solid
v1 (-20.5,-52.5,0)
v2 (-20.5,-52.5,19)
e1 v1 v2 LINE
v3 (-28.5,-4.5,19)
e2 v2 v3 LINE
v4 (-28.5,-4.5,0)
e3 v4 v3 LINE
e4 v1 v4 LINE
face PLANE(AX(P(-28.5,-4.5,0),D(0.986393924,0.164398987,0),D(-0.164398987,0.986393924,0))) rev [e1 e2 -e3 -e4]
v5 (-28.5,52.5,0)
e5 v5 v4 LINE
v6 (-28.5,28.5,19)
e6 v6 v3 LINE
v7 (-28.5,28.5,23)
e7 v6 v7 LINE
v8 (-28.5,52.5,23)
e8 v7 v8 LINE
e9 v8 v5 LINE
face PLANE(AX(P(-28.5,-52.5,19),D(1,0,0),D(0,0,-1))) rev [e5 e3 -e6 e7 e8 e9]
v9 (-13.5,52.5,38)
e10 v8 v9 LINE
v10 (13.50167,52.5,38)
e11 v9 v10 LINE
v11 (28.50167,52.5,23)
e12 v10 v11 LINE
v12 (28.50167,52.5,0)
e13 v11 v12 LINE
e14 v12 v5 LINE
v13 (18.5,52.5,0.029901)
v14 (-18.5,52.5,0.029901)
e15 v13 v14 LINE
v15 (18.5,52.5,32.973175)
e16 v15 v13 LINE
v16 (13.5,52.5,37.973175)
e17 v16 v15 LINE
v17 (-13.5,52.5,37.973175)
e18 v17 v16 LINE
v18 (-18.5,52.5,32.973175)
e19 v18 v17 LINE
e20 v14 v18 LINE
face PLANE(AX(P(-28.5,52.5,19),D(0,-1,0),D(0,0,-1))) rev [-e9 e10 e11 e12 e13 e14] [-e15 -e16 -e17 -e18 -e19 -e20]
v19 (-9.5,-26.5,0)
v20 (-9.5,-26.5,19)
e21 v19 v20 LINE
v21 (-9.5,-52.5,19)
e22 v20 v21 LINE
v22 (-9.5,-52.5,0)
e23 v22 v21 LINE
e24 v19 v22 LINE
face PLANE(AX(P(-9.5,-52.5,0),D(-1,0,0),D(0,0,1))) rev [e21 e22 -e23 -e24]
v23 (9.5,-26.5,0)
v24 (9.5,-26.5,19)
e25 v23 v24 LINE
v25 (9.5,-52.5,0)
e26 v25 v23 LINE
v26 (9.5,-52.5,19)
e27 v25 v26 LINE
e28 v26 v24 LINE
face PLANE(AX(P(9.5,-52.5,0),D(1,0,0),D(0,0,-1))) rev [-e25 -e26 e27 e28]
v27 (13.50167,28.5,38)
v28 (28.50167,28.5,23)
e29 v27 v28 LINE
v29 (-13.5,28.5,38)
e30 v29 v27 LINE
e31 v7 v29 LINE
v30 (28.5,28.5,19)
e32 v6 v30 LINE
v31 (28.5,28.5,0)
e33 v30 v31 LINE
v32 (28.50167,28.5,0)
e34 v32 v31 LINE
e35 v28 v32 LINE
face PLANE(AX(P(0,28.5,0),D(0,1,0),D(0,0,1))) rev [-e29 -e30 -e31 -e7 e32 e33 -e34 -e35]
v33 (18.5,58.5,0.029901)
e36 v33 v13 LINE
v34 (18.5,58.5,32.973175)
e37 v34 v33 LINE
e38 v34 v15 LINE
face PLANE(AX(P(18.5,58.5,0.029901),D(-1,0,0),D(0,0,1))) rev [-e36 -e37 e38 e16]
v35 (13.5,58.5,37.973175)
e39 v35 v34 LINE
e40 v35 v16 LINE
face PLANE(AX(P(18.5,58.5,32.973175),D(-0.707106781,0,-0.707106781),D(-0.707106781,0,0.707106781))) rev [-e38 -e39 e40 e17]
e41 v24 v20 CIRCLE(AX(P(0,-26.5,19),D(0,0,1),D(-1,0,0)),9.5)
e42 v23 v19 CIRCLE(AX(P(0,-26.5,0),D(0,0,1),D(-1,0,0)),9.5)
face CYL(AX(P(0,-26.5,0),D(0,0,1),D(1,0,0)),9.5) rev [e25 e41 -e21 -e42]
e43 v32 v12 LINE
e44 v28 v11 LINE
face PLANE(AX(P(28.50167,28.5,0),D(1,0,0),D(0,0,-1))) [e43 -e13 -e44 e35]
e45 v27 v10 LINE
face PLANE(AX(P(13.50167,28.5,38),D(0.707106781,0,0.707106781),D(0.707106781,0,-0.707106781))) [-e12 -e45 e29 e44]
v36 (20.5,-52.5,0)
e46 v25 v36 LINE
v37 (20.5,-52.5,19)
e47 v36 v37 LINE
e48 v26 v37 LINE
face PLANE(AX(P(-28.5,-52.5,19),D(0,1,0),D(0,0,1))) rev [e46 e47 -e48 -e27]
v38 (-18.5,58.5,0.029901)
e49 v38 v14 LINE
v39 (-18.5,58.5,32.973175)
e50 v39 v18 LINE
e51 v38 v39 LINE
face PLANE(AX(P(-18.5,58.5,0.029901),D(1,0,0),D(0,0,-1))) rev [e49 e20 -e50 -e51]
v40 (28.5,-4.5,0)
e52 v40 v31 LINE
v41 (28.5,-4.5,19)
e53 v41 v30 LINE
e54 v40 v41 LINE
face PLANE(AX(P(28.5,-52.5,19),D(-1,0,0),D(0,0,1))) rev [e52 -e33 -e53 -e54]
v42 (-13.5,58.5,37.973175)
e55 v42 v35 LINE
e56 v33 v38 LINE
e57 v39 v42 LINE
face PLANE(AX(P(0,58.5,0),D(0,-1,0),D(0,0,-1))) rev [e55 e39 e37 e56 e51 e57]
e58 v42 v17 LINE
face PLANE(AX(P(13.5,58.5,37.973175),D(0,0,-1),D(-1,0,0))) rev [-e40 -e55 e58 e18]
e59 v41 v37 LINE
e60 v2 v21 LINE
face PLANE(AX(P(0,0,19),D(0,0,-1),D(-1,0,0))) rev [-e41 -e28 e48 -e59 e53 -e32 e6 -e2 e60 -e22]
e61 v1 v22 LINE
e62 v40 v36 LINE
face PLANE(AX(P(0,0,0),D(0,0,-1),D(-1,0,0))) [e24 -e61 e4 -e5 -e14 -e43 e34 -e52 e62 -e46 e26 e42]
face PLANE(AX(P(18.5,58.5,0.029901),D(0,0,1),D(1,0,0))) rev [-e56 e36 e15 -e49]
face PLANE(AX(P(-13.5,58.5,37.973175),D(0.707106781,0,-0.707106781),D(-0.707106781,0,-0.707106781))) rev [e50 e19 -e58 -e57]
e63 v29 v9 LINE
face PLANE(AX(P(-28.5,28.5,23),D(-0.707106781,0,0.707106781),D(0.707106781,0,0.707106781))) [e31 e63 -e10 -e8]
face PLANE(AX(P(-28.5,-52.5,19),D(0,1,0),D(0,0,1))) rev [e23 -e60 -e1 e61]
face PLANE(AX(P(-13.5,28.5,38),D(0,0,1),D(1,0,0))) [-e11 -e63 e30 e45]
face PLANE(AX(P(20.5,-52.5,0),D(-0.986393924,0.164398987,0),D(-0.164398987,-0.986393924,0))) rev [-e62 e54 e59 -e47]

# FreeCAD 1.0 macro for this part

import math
import FreeCAD as App
import Part
import Sketcher
Q = App.Units.Quantity

doc = App.newDocument("Part")
body = doc.addObject("PartDesign::Body", "Body")

sketch1 = doc.addObject("Sketcher::SketchObject", "Sketch")
body.addObject(sketch1)
sketch1.AttachmentSupport = (doc.XY_Plane, [""])
sketch1.MapMode = "FlatFace"
sketch1.addGeometry(Part.LineSegment(App.Vector(-28, 52, 0), App.Vector(-28, -52, 0)), False)
sketch1.addGeometry(Part.LineSegment(App.Vector(-28, -52, 0), App.Vector(28, -52, 0)), False)
sketch1.addGeometry(Part.LineSegment(App.Vector(28, -52, 0), App.Vector(28, 52, 0)), False)
sketch1.addGeometry(Part.LineSegment(App.Vector(28, 52, 0), App.Vector(-28, 52, 0)), False)
sketch1.addConstraint(Sketcher.Constraint("Coincident", 0, 2, 1, 1))
sketch1.addConstraint(Sketcher.Constraint("Coincident", 1, 2, 2, 1))
sketch1.addConstraint(Sketcher.Constraint("Coincident", 2, 2, 3, 1))
sketch1.addConstraint(Sketcher.Constraint("Coincident", 3, 2, 0, 1))
sketch1.addConstraint(Sketcher.Constraint("Vertical", 0))
sketch1.addConstraint(Sketcher.Constraint("Horizontal", 1))
sketch1.addConstraint(Sketcher.Constraint("Vertical", 2))
sketch1.addConstraint(Sketcher.Constraint("Horizontal", 3))
sketch1.addConstraint(Sketcher.Constraint("Symmetric", 0, 2, 2, 2, -1, 1))
sketch1.addConstraint(Sketcher.Constraint("DistanceX", 1, 1, 1, 2, Q("57 mm")))
sketch1.addConstraint(Sketcher.Constraint("DistanceY", 0, 2, 0, 1, Q("105 mm")))
pad1 = doc.addObject("PartDesign::Pad", "Pad")
body.addObject(pad1)
pad1.Profile = sketch1
pad1.Length = 19

sketch2 = doc.addObject("Sketcher::SketchObject", "Sketch001")
body.addObject(sketch2)
sketch2.AttachmentSupport = (doc.XY_Plane, [""])
sketch2.MapMode = "FlatFace"
sketch2.AttachmentOffset = App.Placement(App.Vector(0, 0, 19), App.Rotation())
sketch2.addGeometry(Part.LineSegment(App.Vector(20, -52, 0), App.Vector(28, -52, 0)), False)
sketch2.addGeometry(Part.LineSegment(App.Vector(28, -52, 0), App.Vector(28, -4, 0)), False)
sketch2.addGeometry(Part.LineSegment(App.Vector(28, -4, 0), App.Vector(20, -52, 0)), False)
sketch2.addConstraint(Sketcher.Constraint("Coincident", 0, 2, 1, 1))
sketch2.addConstraint(Sketcher.Constraint("Coincident", 1, 2, 2, 1))
sketch2.addConstraint(Sketcher.Constraint("Coincident", 2, 2, 0, 1))
sketch2.addConstraint(Sketcher.Constraint("Horizontal", 0))
sketch2.addConstraint(Sketcher.Constraint("Vertical", 1))
sketch2.addConstraint(Sketcher.Constraint("DistanceX", 0, 1, 0, 2, Q("8 mm")))
sketch2.addConstraint(Sketcher.Constraint("DistanceY", 1, 1, 1, 2, Q("48 mm")))
sketch2.addConstraint(Sketcher.Constraint("DistanceX", -1, 1, 0, 2, Q("28.5 mm")))
sketch2.addConstraint(Sketcher.Constraint("DistanceY", 0, 2, -1, 1, Q("52.5 mm")))
pocket1 = doc.addObject("PartDesign::Pocket", "Pocket")
body.addObject(pocket1)
pocket1.Profile = sketch2
pocket1.Length = 19

sketch3 = doc.addObject("Sketcher::SketchObject", "Sketch002")
body.addObject(sketch3)
sketch3.AttachmentSupport = (doc.XY_Plane, [""])
sketch3.MapMode = "FlatFace"
sketch3.AttachmentOffset = App.Placement(App.Vector(0, 0, 19), App.Rotation())
sketch3.addGeometry(Part.LineSegment(App.Vector(-28, -4, 0), App.Vector(-28, -52, 0)), False)
sketch3.addGeometry(Part.LineSegment(App.Vector(-28, -52, 0), App.Vector(-20, -52, 0)), False)
sketch3.addGeometry(Part.LineSegment(App.Vector(-20, -52, 0), App.Vector(-28, -4, 0)), False)
sketch3.addConstraint(Sketcher.Constraint("Coincident", 0, 2, 1, 1))
sketch3.addConstraint(Sketcher.Constraint("Coincident", 1, 2, 2, 1))
sketch3.addConstraint(Sketcher.Constraint("Coincident", 2, 2, 0, 1))
sketch3.addConstraint(Sketcher.Constraint("Vertical", 0))
sketch3.addConstraint(Sketcher.Constraint("Horizontal", 1))
sketch3.addConstraint(Sketcher.Constraint("DistanceX", 1, 1, 1, 2, Q("8 mm")))
sketch3.addConstraint(Sketcher.Constraint("DistanceY", 0, 2, 0, 1, Q("48 mm")))
sketch3.addConstraint(Sketcher.Constraint("DistanceX", 0, 2, -1, 1, Q("28.5 mm")))
sketch3.addConstraint(Sketcher.Constraint("DistanceY", 0, 2, -1, 1, Q("52.5 mm")))
pocket2 = doc.addObject("PartDesign::Pocket", "Pocket001")
body.addObject(pocket2)
pocket2.Profile = sketch3
pocket2.Length = 19

sketch4 = doc.addObject("Sketcher::SketchObject", "Sketch003")
body.addObject(sketch4)
sketch4.AttachmentSupport = (doc.XY_Plane, [""])
sketch4.MapMode = "FlatFace"
sketch4.AttachmentOffset = App.Placement(App.Vector(0, 0, 19), App.Rotation())
sketch4.addGeometry(Part.LineSegment(App.Vector(-10, -26, 0), App.Vector(-10, -52, 0)), False)
sketch4.addGeometry(Part.LineSegment(App.Vector(-10, -52, 0), App.Vector(10, -52, 0)), False)
sketch4.addGeometry(Part.LineSegment(App.Vector(10, -52, 0), App.Vector(10, -26, 0)), False)
sketch4.addGeometry(Part.ArcOfCircle(Part.Circle(App.Vector(0, -26, 0), App.Vector(0, 0, 1), 10), math.radians(0), math.radians(180)), False)
sketch4.addConstraint(Sketcher.Constraint("Coincident", 0, 2, 1, 1))
sketch4.addConstraint(Sketcher.Constraint("Coincident", 1, 2, 2, 1))
sketch4.addConstraint(Sketcher.Constraint("Tangent", 2, 2, 3, 1))
sketch4.addConstraint(Sketcher.Constraint("Tangent", 3, 2, 0, 1))
sketch4.addConstraint(Sketcher.Constraint("Vertical", 0))
sketch4.addConstraint(Sketcher.Constraint("Horizontal", 1))
sketch4.addConstraint(Sketcher.Constraint("Vertical", 2))
sketch4.addConstraint(Sketcher.Constraint("PointOnObject", 3, 3, -2))
sketch4.addConstraint(Sketcher.Constraint("Radius", 3, Q("9.5 mm")))
sketch4.addConstraint(Sketcher.Constraint("DistanceY", 0, 2, 0, 1, Q("26 mm")))
sketch4.addConstraint(Sketcher.Constraint("DistanceY", 3, 3, -1, 1, Q("26.5 mm")))
pocket3 = doc.addObject("PartDesign::Pocket", "Pocket002")
body.addObject(pocket3)
pocket3.Profile = sketch4
pocket3.Type = "ThroughAll"

sketch5 = doc.addObject("Sketcher::SketchObject", "Sketch004")
body.addObject(sketch5)
sketch5.AttachmentSupport = (doc.XZ_Plane, [""])
sketch5.MapMode = "FlatFace"
sketch5.AttachmentOffset = App.Placement(App.Vector(0, 0, -52.5), App.Rotation())
sketch5.addGeometry(Part.LineSegment(App.Vector(-28, 23, 0), App.Vector(-14, 38, 0)), False)
sketch5.addGeometry(Part.LineSegment(App.Vector(-14, 38, 0), App.Vector(14, 38, 0)), False)
sketch5.addGeometry(Part.LineSegment(App.Vector(14, 38, 0), App.Vector(29, 23, 0)), False)
sketch5.addGeometry(Part.LineSegment(App.Vector(29, 23, 0), App.Vector(29, 0, 0)), False)
sketch5.addGeometry(Part.LineSegment(App.Vector(29, 0, 0), App.Vector(-28, 0, 0)), False)
sketch5.addGeometry(Part.LineSegment(App.Vector(-28, 0, 0), App.Vector(-28, 23, 0)), False)
sketch5.addConstraint(Sketcher.Constraint("Coincident", 0, 2, 1, 1))
sketch5.addConstraint(Sketcher.Constraint("Coincident", 1, 2, 2, 1))
sketch5.addConstraint(Sketcher.Constraint("Coincident", 2, 2, 3, 1))
sketch5.addConstraint(Sketcher.Constraint("Coincident", 3, 2, 4, 1))
sketch5.addConstraint(Sketcher.Constraint("Coincident", 4, 2, 5, 1))
sketch5.addConstraint(Sketcher.Constraint("Coincident", 5, 2, 0, 1))
sketch5.addConstraint(Sketcher.Constraint("Horizontal", 1))
sketch5.addConstraint(Sketcher.Constraint("Vertical", 3))
sketch5.addConstraint(Sketcher.Constraint("Horizontal", 4))
sketch5.addConstraint(Sketcher.Constraint("Vertical", 5))
sketch5.addConstraint(Sketcher.Constraint("PointOnObject", 3, 2, -1))
sketch5.addConstraint(Sketcher.Constraint("Perpendicular", 0, 2))
sketch5.addConstraint(Sketcher.Constraint("Horizontal", 2, 2, 5, 2))
sketch5.addConstraint(Sketcher.Constraint("Equal", 0, 2))
sketch5.addConstraint(Sketcher.Constraint("DistanceY", 3, 2, 3, 1, Q("23 mm")))
sketch5.addConstraint(Sketcher.Constraint("DistanceY", -1, 1, 0, 2, Q("38 mm")))
sketch5.addConstraint(Sketcher.Constraint("DistanceX", 0, 2, -1, 1, Q("13.5 mm")))
sketch5.addConstraint(Sketcher.Constraint("DistanceX", 1, 1, 1, 2, Q("27.00167 mm")))
pad2 = doc.addObject("PartDesign::Pad", "Pad001")
body.addObject(pad2)
pad2.Profile = sketch5
pad2.Length = 24

sketch6 = doc.addObject("Sketcher::SketchObject", "Sketch005")
body.addObject(sketch6)
sketch6.AttachmentSupport = (doc.XZ_Plane, [""])
sketch6.MapMode = "FlatFace"
sketch6.AttachmentOffset = App.Placement(App.Vector(0, 0, -52.5), App.Rotation())
sketch6.addGeometry(Part.LineSegment(App.Vector(18, 0, 0), App.Vector(-18, 0, 0)), False)
sketch6.addGeometry(Part.LineSegment(App.Vector(-18, 0, 0), App.Vector(-18, 33, 0)), False)
sketch6.addGeometry(Part.LineSegment(App.Vector(-18, 33, 0), App.Vector(-14, 38, 0)), False)
sketch6.addGeometry(Part.LineSegment(App.Vector(-14, 38, 0), App.Vector(14, 38, 0)), False)
sketch6.addGeometry(Part.LineSegment(App.Vector(14, 38, 0), App.Vector(18, 33, 0)), False)
sketch6.addGeometry(Part.LineSegment(App.Vector(18, 33, 0), App.Vector(18, 0, 0)), False)
sketch6.addConstraint(Sketcher.Constraint("Coincident", 0, 2, 1, 1))
sketch6.addConstraint(Sketcher.Constraint("Coincident", 1, 2, 2, 1))
sketch6.addConstraint(Sketcher.Constraint("Coincident", 2, 2, 3, 1))
sketch6.addConstraint(Sketcher.Constraint("Coincident", 3, 2, 4, 1))
sketch6.addConstraint(Sketcher.Constraint("Coincident", 4, 2, 5, 1))
sketch6.addConstraint(Sketcher.Constraint("Coincident", 5, 2, 0, 1))
sketch6.addConstraint(Sketcher.Constraint("Horizontal", 0))
sketch6.addConstraint(Sketcher.Constraint("Vertical", 1))
sketch6.addConstraint(Sketcher.Constraint("Horizontal", 3))
sketch6.addConstraint(Sketcher.Constraint("Vertical", 5))
sketch6.addConstraint(Sketcher.Constraint("Symmetric", 1, 2, 4, 2, -2))
sketch6.addConstraint(Sketcher.Constraint("Perpendicular", 2, 4))
sketch6.addConstraint(Sketcher.Constraint("Equal", 2, 4))
sketch6.addConstraint(Sketcher.Constraint("DistanceX", 0, 2, 0, 1, Q("37 mm")))
sketch6.addConstraint(Sketcher.Constraint("DistanceX", 3, 1, 3, 2, Q("27 mm")))
sketch6.addConstraint(Sketcher.Constraint("DistanceY", -1, 1, 0, 2, Q("0.029901 mm")))
sketch6.addConstraint(Sketcher.Constraint("DistanceY", 1, 1, 1, 2, Q("32.943274 mm")))
pad3 = doc.addObject("PartDesign::Pad", "Pad002")
body.addObject(pad3)
pad3.Profile = sketch6
pad3.Length = 6
pad3.Reversed = True

doc.recompute()
